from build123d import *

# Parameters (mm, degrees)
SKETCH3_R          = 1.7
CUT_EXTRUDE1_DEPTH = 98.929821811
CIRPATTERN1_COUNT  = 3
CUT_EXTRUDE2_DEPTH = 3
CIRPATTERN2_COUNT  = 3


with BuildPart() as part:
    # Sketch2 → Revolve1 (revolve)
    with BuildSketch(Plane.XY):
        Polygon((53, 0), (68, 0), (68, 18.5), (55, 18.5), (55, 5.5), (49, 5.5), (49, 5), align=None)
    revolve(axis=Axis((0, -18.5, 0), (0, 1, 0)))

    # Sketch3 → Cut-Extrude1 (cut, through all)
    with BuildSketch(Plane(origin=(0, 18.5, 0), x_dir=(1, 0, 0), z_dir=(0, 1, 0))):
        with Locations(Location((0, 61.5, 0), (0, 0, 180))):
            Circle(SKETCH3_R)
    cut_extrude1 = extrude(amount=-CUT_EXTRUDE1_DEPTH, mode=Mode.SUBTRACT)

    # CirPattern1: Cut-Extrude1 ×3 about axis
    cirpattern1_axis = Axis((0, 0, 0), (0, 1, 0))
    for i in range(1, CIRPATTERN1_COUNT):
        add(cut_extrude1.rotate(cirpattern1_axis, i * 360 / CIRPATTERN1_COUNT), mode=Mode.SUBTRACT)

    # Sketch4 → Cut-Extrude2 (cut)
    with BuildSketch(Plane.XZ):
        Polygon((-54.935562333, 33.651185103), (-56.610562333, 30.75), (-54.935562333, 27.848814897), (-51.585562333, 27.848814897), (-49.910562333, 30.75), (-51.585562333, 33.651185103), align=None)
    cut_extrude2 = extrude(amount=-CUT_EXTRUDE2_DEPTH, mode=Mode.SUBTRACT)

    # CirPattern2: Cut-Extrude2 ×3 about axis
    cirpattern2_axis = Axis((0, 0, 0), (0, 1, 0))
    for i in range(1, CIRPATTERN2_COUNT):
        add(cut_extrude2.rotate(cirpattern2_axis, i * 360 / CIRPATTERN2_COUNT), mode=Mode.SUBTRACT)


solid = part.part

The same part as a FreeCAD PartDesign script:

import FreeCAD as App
import Part
import Sketcher
from FreeCAD import Vector
Q = App.Units.Quantity

doc = App.newDocument("Part")
body = doc.addObject("PartDesign::Body", "Body")

# Sketch on XY plane
sketch1 = body.newObject("Sketcher::SketchObject", "Sketch")
sketch1.AttachmentSupport = (doc.getObject("XY_Plane"), [""])
sketch1.MapMode = "FlatFace"
sketch1.addGeometry(Part.LineSegment(Vector(53, 0, 0), Vector(68, 0, 0)), False)
sketch1.addGeometry(Part.LineSegment(Vector(68, 0, 0), Vector(68, 18.5, 0)), False)
sketch1.addGeometry(Part.LineSegment(Vector(68, 18.5, 0), Vector(55, 18.5, 0)), False)
sketch1.addGeometry(Part.LineSegment(Vector(55, 18.5, 0), Vector(55, 5.5, 0)), False)
sketch1.addGeometry(Part.LineSegment(Vector(55, 5.5, 0), Vector(49, 5.5, 0)), False)
sketch1.addGeometry(Part.LineSegment(Vector(49, 5.5, 0), Vector(49, 5, 0)), False)
sketch1.addGeometry(Part.LineSegment(Vector(49, 5, 0), Vector(53, 0, 0)), False)
sketch1.addConstraint(Sketcher.Constraint("Coincident", 0, 2, 1, 1))
sketch1.addConstraint(Sketcher.Constraint("Coincident", 1, 2, 2, 1))
sketch1.addConstraint(Sketcher.Constraint("Coincident", 2, 2, 3, 1))
sketch1.addConstraint(Sketcher.Constraint("Coincident", 3, 2, 4, 1))
sketch1.addConstraint(Sketcher.Constraint("Coincident", 4, 2, 5, 1))
sketch1.addConstraint(Sketcher.Constraint("Coincident", 5, 2, 6, 1))
sketch1.addConstraint(Sketcher.Constraint("Coincident", 6, 2, 0, 1))
sketch1.addConstraint(Sketcher.Constraint("Horizontal", 0))
sketch1.addConstraint(Sketcher.Constraint("Vertical", 1))
sketch1.addConstraint(Sketcher.Constraint("Horizontal", 2))
sketch1.addConstraint(Sketcher.Constraint("Vertical", 3))
sketch1.addConstraint(Sketcher.Constraint("Horizontal", 4))
sketch1.addConstraint(Sketcher.Constraint("Vertical", 5))
sketch1.addConstraint(Sketcher.Constraint("PointOnObject", 0, 2, -1))
sketch1.addConstraint(Sketcher.Constraint("Equal", 2, 3))
sketch1.addConstraint(Sketcher.Constraint("DistanceX", 0, 1, 0, 2, Q("15 mm")))
sketch1.addConstraint(Sketcher.Constraint("DistanceX", 2, 2, 2, 1, Q("13 mm")))
sketch1.addConstraint(Sketcher.Constraint("DistanceX", 4, 2, 4, 1, Q("6 mm")))
sketch1.addConstraint(Sketcher.Constraint("DistanceY", 1, 1, 1, 2, Q("18.5 mm")))
sketch1.addConstraint(Sketcher.Constraint("DistanceY", 5, 2, 5, 1, Q("0.5 mm")))
sketch1.addConstraint(Sketcher.Constraint("DistanceX", -1, 1, 0, 2, Q("68 mm")))
revolution = body.newObject("PartDesign::Revolution", "Revolution")
revolution.Profile = sketch1
revolution.ReferenceAxis = (sketch1, ["V_Axis"])
revolution.Angle = 360

# Sketch on XZ plane
sketch2 = body.newObject("Sketcher::SketchObject", "Sketch001")
sketch2.AttachmentSupport = (doc.getObject("XZ_Plane"), [""])
sketch2.MapMode = "FlatFace"
sketch2.AttachmentOffset = App.Placement(Vector(0, 0, -18.5), App.Rotation())
sketch2.addGeometry(Part.Circle(Vector(0, -61.5, 0), Vector(0, 0, 1), 1.7), False)
sketch2.addConstraint(Sketcher.Constraint("PointOnObject", 0, 3, -2))
sketch2.addConstraint(Sketcher.Constraint("Diameter", 0, Q("3.4 mm")))
sketch2.addConstraint(Sketcher.Constraint("DistanceY", 0, 3, -1, 1, Q("61.5 mm")))
pocket1 = body.newObject("PartDesign::Pocket", "Pocket")
pocket1.Profile = sketch2
pocket1.Type = "ThroughAll"
pocket1.Reversed = True
doc.recompute()

polarpattern = body.newObject("PartDesign::PolarPattern", "PolarPattern")
polarpattern.Originals = [pocket1]
polarpattern.Axis = (doc.getObject("Y_Axis"), [""])
polarpattern.Angle = 360
polarpattern.Occurrences = 3
body.Tip = polarpattern

# Sketch on XZ plane
sketch3 = body.newObject("Sketcher::SketchObject", "Sketch002")
sketch3.AttachmentSupport = (doc.getObject("XZ_Plane"), [""])
sketch3.MapMode = "FlatFace"
sketch3.addGeometry(Part.LineSegment(Vector(-54.9, 33.7, 0), Vector(-56.6, 30.8, 0)), False)
sketch3.addGeometry(Part.LineSegment(Vector(-56.6, 30.8, 0), Vector(-54.9, 27.8, 0)), False)
sketch3.addGeometry(Part.LineSegment(Vector(-54.9, 27.8, 0), Vector(-51.6, 27.8, 0)), False)
sketch3.addGeometry(Part.LineSegment(Vector(-51.6, 27.8, 0), Vector(-49.9, 30.8, 0)), False)
sketch3.addGeometry(Part.LineSegment(Vector(-49.9, 30.8, 0), Vector(-51.6, 33.7, 0)), False)
sketch3.addGeometry(Part.LineSegment(Vector(-51.6, 33.7, 0), Vector(-54.9, 33.7, 0)), False)
sketch3.addConstraint(Sketcher.Constraint("Coincident", 0, 2, 1, 1))
sketch3.addConstraint(Sketcher.Constraint("Coincident", 1, 2, 2, 1))
sketch3.addConstraint(Sketcher.Constraint("Coincident", 2, 2, 3, 1))
sketch3.addConstraint(Sketcher.Constraint("Coincident", 3, 2, 4, 1))
sketch3.addConstraint(Sketcher.Constraint("Coincident", 4, 2, 5, 1))
sketch3.addConstraint(Sketcher.Constraint("Coincident", 5, 2, 0, 1))
sketch3.addConstraint(Sketcher.Constraint("Horizontal", 2))
sketch3.addConstraint(Sketcher.Constraint("Horizontal", 5))
sketch3.addConstraint(Sketcher.Constraint("Parallel", 0, 3))
sketch3.addConstraint(Sketcher.Constraint("Parallel", 1, 4))
sketch3.addConstraint(Sketcher.Constraint("Horizontal", 0, 2, 3, 2))
sketch3.addConstraint(Sketcher.Constraint("Vertical", 2, 2, 4, 2))
sketch3.addConstraint(Sketcher.Constraint("Vertical", 1, 2, 5, 2))
sketch3.addConstraint(Sketcher.Constraint("Angle", 0, Q("-120 deg")))
sketch3.addConstraint(Sketcher.Constraint("DistanceX", 2, 1, 2, 2, Q("3.35 mm")))
sketch3.addConstraint(Sketcher.Constraint("DistanceX", 0, 2, 3, 2, Q("6.7 mm")))
sketch3.addConstraint(Sketcher.Constraint("DistanceY", -1, 1, 0, 2, Q("30.75 mm")))
sketch3.addConstraint(Sketcher.Constraint("DistanceX", 0, 2, -1, 1, Q("56.610562 mm")))
pocket2 = body.newObject("PartDesign::Pocket", "Pocket001")
pocket2.Profile = sketch3
pocket2.Length = 3
doc.recompute()

polarpattern2 = body.newObject("PartDesign::PolarPattern", "PolarPattern001")
polarpattern2.Originals = [pocket2]
polarpattern2.Axis = (doc.getObject("Y_Axis"), [""])
polarpattern2.Angle = 360
polarpattern2.Occurrences = 3
body.Tip = polarpattern2

doc.recompute()
